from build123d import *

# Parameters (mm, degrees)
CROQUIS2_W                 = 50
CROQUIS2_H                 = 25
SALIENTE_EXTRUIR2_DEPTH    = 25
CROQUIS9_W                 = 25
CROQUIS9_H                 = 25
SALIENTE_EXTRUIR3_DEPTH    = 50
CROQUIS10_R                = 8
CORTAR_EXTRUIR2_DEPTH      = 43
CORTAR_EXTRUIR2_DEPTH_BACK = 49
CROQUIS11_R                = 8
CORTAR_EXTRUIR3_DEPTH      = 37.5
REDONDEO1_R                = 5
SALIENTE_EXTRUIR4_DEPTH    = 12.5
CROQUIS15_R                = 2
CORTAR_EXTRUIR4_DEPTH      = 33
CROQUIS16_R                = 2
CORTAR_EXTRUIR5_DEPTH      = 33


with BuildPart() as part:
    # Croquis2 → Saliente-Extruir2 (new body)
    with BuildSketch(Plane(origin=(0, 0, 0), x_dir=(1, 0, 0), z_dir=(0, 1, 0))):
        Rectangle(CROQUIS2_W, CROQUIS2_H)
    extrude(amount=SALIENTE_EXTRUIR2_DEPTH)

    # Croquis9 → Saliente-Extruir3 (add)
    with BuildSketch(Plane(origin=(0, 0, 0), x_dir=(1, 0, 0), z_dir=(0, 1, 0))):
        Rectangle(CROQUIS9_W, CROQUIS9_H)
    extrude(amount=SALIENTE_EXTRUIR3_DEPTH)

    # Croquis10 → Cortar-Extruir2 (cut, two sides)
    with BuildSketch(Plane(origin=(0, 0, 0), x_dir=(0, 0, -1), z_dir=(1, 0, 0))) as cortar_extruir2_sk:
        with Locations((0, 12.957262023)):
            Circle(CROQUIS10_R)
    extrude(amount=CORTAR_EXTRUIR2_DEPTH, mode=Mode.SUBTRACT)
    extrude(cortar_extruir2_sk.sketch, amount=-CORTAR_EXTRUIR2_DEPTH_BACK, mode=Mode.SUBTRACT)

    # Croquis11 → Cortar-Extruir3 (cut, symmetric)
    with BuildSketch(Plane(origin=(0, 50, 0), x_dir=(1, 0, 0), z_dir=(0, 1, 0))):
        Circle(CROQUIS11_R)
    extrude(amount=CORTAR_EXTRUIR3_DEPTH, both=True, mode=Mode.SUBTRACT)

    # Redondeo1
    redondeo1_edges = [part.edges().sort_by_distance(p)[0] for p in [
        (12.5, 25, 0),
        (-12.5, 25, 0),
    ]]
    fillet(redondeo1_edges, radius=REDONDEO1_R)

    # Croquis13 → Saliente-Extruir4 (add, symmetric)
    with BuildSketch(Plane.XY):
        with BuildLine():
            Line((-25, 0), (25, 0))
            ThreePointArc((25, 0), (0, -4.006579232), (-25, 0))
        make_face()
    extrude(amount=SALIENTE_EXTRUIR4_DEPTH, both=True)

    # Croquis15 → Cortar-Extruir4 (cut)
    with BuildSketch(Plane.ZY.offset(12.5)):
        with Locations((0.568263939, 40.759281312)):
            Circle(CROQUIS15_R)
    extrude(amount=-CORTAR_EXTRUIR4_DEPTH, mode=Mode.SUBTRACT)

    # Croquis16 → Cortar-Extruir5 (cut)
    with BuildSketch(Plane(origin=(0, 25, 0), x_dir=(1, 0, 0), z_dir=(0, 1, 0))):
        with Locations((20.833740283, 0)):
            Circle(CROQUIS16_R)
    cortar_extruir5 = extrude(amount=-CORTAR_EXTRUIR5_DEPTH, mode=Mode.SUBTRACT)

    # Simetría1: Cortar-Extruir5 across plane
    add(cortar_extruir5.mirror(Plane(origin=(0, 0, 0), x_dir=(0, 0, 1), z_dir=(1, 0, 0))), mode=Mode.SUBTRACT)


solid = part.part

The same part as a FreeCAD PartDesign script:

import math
import FreeCAD as App
import Part
import Sketcher

V = App.Vector


def edges_at(feature, points):
    """Names of the edges that pass closest to the given points."""
    edges = feature.Shape.Edges
    near = lambda p: min(range(len(edges)), key=lambda i: edges[i].distToShape(Part.Vertex(*p))[0])
    return sorted({f"Edge{near(p) + 1}" for p in points})

doc = App.newDocument("Part")
body = doc.addObject("PartDesign::Body", "Body")

sketch1 = body.newObject("Sketcher::SketchObject", "Sketch")
sketch1.AttachmentSupport = (doc.getObject("XZ_Plane"), [""])
sketch1.MapMode = "FlatFace"
sketch1.addGeometry([
    Part.LineSegment(V(-25, -12.5, 0), V(-25, 12.5, 0)),
    Part.LineSegment(V(-25, 12.5, 0), V(25, 12.5, 0)),
    Part.LineSegment(V(25, 12.5, 0), V(25, -12.5, 0)),
    Part.LineSegment(V(25, -12.5, 0), V(-25, -12.5, 0)),
], False)
sketch1.addConstraint([
    Sketcher.Constraint("Coincident", 0, 2, 1, 1),
    Sketcher.Constraint("Coincident", 1, 2, 2, 1),
    Sketcher.Constraint("Coincident", 2, 2, 3, 1),
    Sketcher.Constraint("Coincident", 3, 2, 0, 1),
    Sketcher.Constraint("Vertical", 0),
    Sketcher.Constraint("Horizontal", 1),
    Sketcher.Constraint("Vertical", 2),
    Sketcher.Constraint("Horizontal", 3),
    Sketcher.Constraint("Symmetric", 0, 2, 2, 2, -1, 1),
    Sketcher.Constraint("DistanceX", 1, 1, 1, 2, 50.0),
    Sketcher.Constraint("DistanceY", 0, 1, 0, 2, 25.0),
])
pad1 = body.newObject("PartDesign::Pad", "Pad")
pad1.Profile = sketch1
pad1.Length = 25
pad1.Reversed = True

sketch2 = body.newObject("Sketcher::SketchObject", "Sketch001")
sketch2.AttachmentSupport = (doc.getObject("XZ_Plane"), [""])
sketch2.MapMode = "FlatFace"
sketch2.addGeometry([
    Part.LineSegment(V(-12.5, -12.5, 0), V(-12.5, 12.5, 0)),
    Part.LineSegment(V(-12.5, 12.5, 0), V(12.5, 12.5, 0)),
    Part.LineSegment(V(12.5, 12.5, 0), V(12.5, -12.5, 0)),
    Part.LineSegment(V(12.5, -12.5, 0), V(-12.5, -12.5, 0)),
], False)
sketch2.addConstraint([
    Sketcher.Constraint("Coincident", 0, 2, 1, 1),
    Sketcher.Constraint("Coincident", 1, 2, 2, 1),
    Sketcher.Constraint("Coincident", 2, 2, 3, 1),
    Sketcher.Constraint("Coincident", 3, 2, 0, 1),
    Sketcher.Constraint("Vertical", 0),
    Sketcher.Constraint("Horizontal", 1),
    Sketcher.Constraint("Vertical", 2),
    Sketcher.Constraint("Horizontal", 3),
    Sketcher.Constraint("Symmetric", 0, 2, 2, 2, -1, 1),
    Sketcher.Constraint("Equal", 3, 0),
    Sketcher.Constraint("DistanceX", 1, 1, 1, 2, 25.0),
])
pad2 = body.newObject("PartDesign::Pad", "Pad001")
pad2.Profile = sketch2
pad2.Length = 50
pad2.Reversed = True

sketch3 = body.newObject("Sketcher::SketchObject", "Sketch002")
sketch3.AttachmentSupport = (doc.getObject("YZ_Plane"), [""])
sketch3.MapMode = "FlatFace"
sketch3.addGeometry(Part.Circle(V(12.957262, 0, 0), V(0, 0, 1), 8), False)
sketch3.addConstraint([
    Sketcher.Constraint("PointOnObject", 0, 3, -1),
    Sketcher.Constraint("Diameter", 0, 16.0),
    Sketcher.Constraint("DistanceX", -1, 1, 0, 3, 12.957262),
])
pocket1 = body.newObject("PartDesign::Pocket", "Pocket")
pocket1.Profile = sketch3
pocket1.Type = "ThroughAll"
pocket1.Midplane = True

sketch4 = body.newObject("Sketcher::SketchObject", "Sketch003")
sketch4.AttachmentSupport = (doc.getObject("XZ_Plane"), [""])
sketch4.MapMode = "FlatFace"
sketch4.AttachmentOffset = App.Placement(V(0, 0, -50), App.Rotation())
sketch4.addGeometry(Part.Circle(V(0, 0, 0), V(0, 0, 1), 8), False)
sketch4.addConstraint([
    Sketcher.Constraint("Coincident", 0, 3, -1, 1),
    Sketcher.Constraint("Diameter", 0, 16.0),
])
pocket2 = body.newObject("PartDesign::Pocket", "Pocket001")
pocket2.Profile = sketch4
pocket2.Length = 75
pocket2.Midplane = True
doc.recompute()

fillet = body.newObject("PartDesign::Fillet", "Fillet")
fillet.Base = (pocket2, edges_at(pocket2, [(12.5, 25, 0), (-12.5, 25, 0)]))
fillet.Radius = 5

sketch5 = body.newObject("Sketcher::SketchObject", "Sketch004")
sketch5.AttachmentSupport = (doc.getObject("XY_Plane"), [""])
sketch5.MapMode = "FlatFace"
sketch5.addGeometry([
    Part.LineSegment(V(25, 0, 0), V(-25, 0, 0)),
    Part.ArcOfCircle(Part.Circle(V(0, 75.993421, 0), V(0, 0, 1), 80), math.radians(-108.209957), math.radians(-71.790043)),
], False)
sketch5.addConstraint([
    Sketcher.Constraint("Coincident", 0, 1, 1, 2),
    Sketcher.Constraint("Coincident", 1, 1, 0, 2),
    Sketcher.Constraint("Horizontal", 0),
    Sketcher.Constraint("Symmetric", 0, 1, 1, 1, -1, 1),
    Sketcher.Constraint("Radius", 1, 80.0),
    Sketcher.Constraint("DistanceX", 0, 2, 0, 1, 50.0),
])
pad3 = body.newObject("PartDesign::Pad", "Pad002")
pad3.Profile = sketch5
pad3.Length = 25
pad3.Midplane = True

sketch6 = body.newObject("Sketcher::SketchObject", "Sketch005")
sketch6.AttachmentSupport = (doc.getObject("YZ_Plane"), [""])
sketch6.MapMode = "FlatFace"
sketch6.AttachmentOffset = App.Placement(V(0, 0, -12.5), App.Rotation())
sketch6.addGeometry(Part.Circle(V(40.759281, 0.568264, 0), V(0, 0, 1), 2), False)
sketch6.addConstraint([
    Sketcher.Constraint("Diameter", 0, 4.0),
    Sketcher.Constraint("DistanceX", -1, 1, 0, 3, 40.759281),
    Sketcher.Constraint("DistanceY", -1, 1, 0, 3, 0.568264),
])
pocket3 = body.newObject("PartDesign::Pocket", "Pocket002")
pocket3.Profile = sketch6
pocket3.Length = 33
pocket3.Reversed = True

sketch7 = body.newObject("Sketcher::SketchObject", "Sketch006")
sketch7.AttachmentSupport = (doc.getObject("XZ_Plane"), [""])
sketch7.MapMode = "FlatFace"
sketch7.AttachmentOffset = App.Placement(V(0, 0, -25), App.Rotation())
sketch7.addGeometry(Part.Circle(V(20.83374, 0, 0), V(0, 0, 1), 2), False)
sketch7.addConstraint([
    Sketcher.Constraint("PointOnObject", 0, 3, -1),
    Sketcher.Constraint("Diameter", 0, 4.0),
    Sketcher.Constraint("DistanceX", -1, 1, 0, 3, 20.83374),
])
pocket4 = body.newObject("PartDesign::Pocket", "Pocket003")
pocket4.Profile = sketch7
pocket4.Length = 33
pocket4.Reversed = True
doc.recompute()

mirrored = body.newObject("PartDesign::Mirrored", "Mirrored")
mirrored.Originals = [pocket4]
mirrored.MirrorPlane = (doc.getObject("YZ_Plane"), [""])
body.Tip = mirrored

doc.recompute()
